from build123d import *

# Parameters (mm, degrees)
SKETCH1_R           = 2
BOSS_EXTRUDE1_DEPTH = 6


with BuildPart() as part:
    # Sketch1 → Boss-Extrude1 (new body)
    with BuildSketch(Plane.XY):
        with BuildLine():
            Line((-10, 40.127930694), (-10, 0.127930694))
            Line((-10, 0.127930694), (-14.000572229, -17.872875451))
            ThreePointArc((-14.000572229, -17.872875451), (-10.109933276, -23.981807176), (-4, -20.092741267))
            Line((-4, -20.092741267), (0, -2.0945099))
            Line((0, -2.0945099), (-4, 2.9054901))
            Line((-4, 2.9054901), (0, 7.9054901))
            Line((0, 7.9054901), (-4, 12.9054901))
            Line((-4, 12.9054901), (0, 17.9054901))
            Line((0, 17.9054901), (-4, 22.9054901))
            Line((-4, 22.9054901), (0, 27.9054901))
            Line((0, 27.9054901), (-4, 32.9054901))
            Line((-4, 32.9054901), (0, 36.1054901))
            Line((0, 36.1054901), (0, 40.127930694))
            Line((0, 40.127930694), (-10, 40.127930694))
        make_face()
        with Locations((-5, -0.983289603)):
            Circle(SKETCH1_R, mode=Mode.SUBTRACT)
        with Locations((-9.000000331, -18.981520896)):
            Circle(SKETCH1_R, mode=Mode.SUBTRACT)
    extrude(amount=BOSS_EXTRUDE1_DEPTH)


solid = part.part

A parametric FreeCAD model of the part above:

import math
import FreeCAD as App
import Part
import Sketcher
from FreeCAD import Vector
Q = App.Units.Quantity

doc = App.newDocument("Part")
params = doc.addObject("Spreadsheet::Sheet", "Params")
for row, (alias, value) in enumerate([
    ("sketch1_diameter", "4 mm"),
    ("sketch1_width", "10 mm"),
    ("sketch1_height", "40 mm"),
    ("sketch1_length", "18.44 mm"),
    ("pad1_length", "6 mm"),
], start=1):
    params.set(f"A{row}", alias)
    params.set(f"B{row}", "=" + value)
    params.setAlias(f"B{row}", alias)

body = doc.addObject("PartDesign::Body", "Body")

# Sketch on XY plane
sketch1 = doc.addObject("Sketcher::SketchObject", "Sketch")
body.addObject(sketch1)
sketch1.AttachmentSupport = (doc.XY_Plane, [""])
sketch1.MapMode = "FlatFace"
sketch1.addGeometry([
    Part.LineSegment(Vector(-10, 40.1, 0), Vector(-10, 0.1, 0)),  # 0
    Part.LineSegment(Vector(-10, 0.1, 0), Vector(-14, -17.9, 0)),  # 1
    Part.ArcOfCircle(Part.Circle(Vector(-9, -19, 0), Vector(0, 0, 1), 5.1), math.radians(167), math.radians(347)),  # 2
    Part.LineSegment(Vector(-4, -20.1, 0), Vector(0, -2.1, 0)),  # 3
    Part.LineSegment(Vector(0, -2.1, 0), Vector(-4, 2.9, 0)),  # 4
    Part.LineSegment(Vector(-4, 2.9, 0), Vector(0, 7.9, 0)),  # 5
    Part.LineSegment(Vector(0, 7.9, 0), Vector(-4, 12.9, 0)),  # 6
    Part.LineSegment(Vector(-4, 12.9, 0), Vector(0, 17.9, 0)),  # 7
    Part.LineSegment(Vector(0, 17.9, 0), Vector(-4, 22.9, 0)),  # 8
    Part.LineSegment(Vector(-4, 22.9, 0), Vector(0, 27.9, 0)),  # 9
    Part.LineSegment(Vector(0, 27.9, 0), Vector(-4, 32.9, 0)),  # 10
    Part.LineSegment(Vector(-4, 32.9, 0), Vector(0, 36.1, 0)),  # 11
    Part.LineSegment(Vector(0, 36.1, 0), Vector(0, 40.1, 0)),  # 12
    Part.LineSegment(Vector(0, 40.1, 0), Vector(-10, 40.1, 0)),  # 13
    Part.Circle(Vector(-9, -19, 0), Vector(0, 0, 1), 2),  # 14
    Part.Circle(Vector(-5, -1, 0), Vector(0, 0, 1), 2),  # 15
], False)
sketch1.addConstraint([
    Sketcher.Constraint("Coincident", 0, 2, 1, 1),
    Sketcher.Constraint("Coincident", 1, 2, 2, 1),
    Sketcher.Constraint("Tangent", 2, 2, 3, 1),
    Sketcher.Constraint("Coincident", 3, 2, 4, 1),
    Sketcher.Constraint("Coincident", 4, 2, 5, 1),
    Sketcher.Constraint("Coincident", 5, 2, 6, 1),
    Sketcher.Constraint("Coincident", 6, 2, 7, 1),
    Sketcher.Constraint("Coincident", 7, 2, 8, 1),
    Sketcher.Constraint("Coincident", 8, 2, 9, 1),
    Sketcher.Constraint("Coincident", 9, 2, 10, 1),
    Sketcher.Constraint("Coincident", 10, 2, 11, 1),
    Sketcher.Constraint("Coincident", 11, 2, 12, 1),
    Sketcher.Constraint("Coincident", 12, 2, 13, 1),
    Sketcher.Constraint("Coincident", 13, 2, 0, 1),
    Sketcher.Constraint("Vertical", 0),
    Sketcher.Constraint("Vertical", 12),
    Sketcher.Constraint("Horizontal", 13),
    Sketcher.Constraint("Coincident", 14, 3, 2, 3),
    Sketcher.Constraint("Equal", 14, 15),
    Sketcher.Constraint("PointOnObject", 3, 2, -2),
    Sketcher.Constraint("PointOnObject", 5, 2, -2),
    Sketcher.Constraint("PointOnObject", 7, 2, -2),
    Sketcher.Constraint("PointOnObject", 9, 2, -2),
    Sketcher.Constraint("PointOnObject", 11, 2, -2),
    Sketcher.Constraint("Parallel", 1, 3),
    Sketcher.Constraint("Parallel", 4, 6),
    Sketcher.Constraint("Parallel", 5, 7),
    Sketcher.Constraint("Parallel", 6, 8),
    Sketcher.Constraint("Parallel", 7, 9),
    Sketcher.Constraint("Parallel", 8, 10),
    Sketcher.Constraint("Perpendicular", 10, 11),
    Sketcher.Constraint("Vertical", 2, 2, 4, 2),
    Sketcher.Constraint("Vertical", 4, 2, 6, 2),
    Sketcher.Constraint("Vertical", 6, 2, 8, 2),
    Sketcher.Constraint("Vertical", 8, 2, 10, 2),
    Sketcher.Constraint("Equal", 4, 5),
    Sketcher.Constraint("Diameter", 14, Q("4 mm")),
    Sketcher.Constraint("DistanceX", 13, 2, 13, 1, Q("10 mm")),
    Sketcher.Constraint("DistanceY", 0, 2, 0, 1, Q("40 mm")),
    Sketcher.Constraint("DistanceX", 2, 3, -1, 1, Q("9 mm")),
    Sketcher.Constraint("DistanceX", 15, 3, -1, 1, Q("5 mm")),
    Sketcher.Constraint("DistanceX", 2, 2, -1, 1, Q("4 mm")),
    Sketcher.Constraint("DistanceY", 3, 2, 4, 2, Q("5 mm")),
    Sketcher.Constraint("Angle", 1, Q("-102.53 deg")),
    Sketcher.Constraint("Distance", 1, Q("18.44 mm")),
    Sketcher.Constraint("DistanceY", 2, 3, -1, 1, Q("18.981521 mm")),
    Sketcher.Constraint("DistanceY", 15, 3, -1, 1, Q("0.98329 mm")),
])
sketch1.setExpression("Constraints[36]", "Params.sketch1_diameter")
sketch1.setExpression("Constraints[37]", "Params.sketch1_width")
sketch1.setExpression("Constraints[38]", "Params.sketch1_height")
sketch1.setExpression("Constraints[44]", "Params.sketch1_length")
pad1 = doc.addObject("PartDesign::Pad", "Pad")
body.addObject(pad1)
pad1.Profile = sketch1
pad1.setExpression("Length", "Params.pad1_length")

doc.recompute()
